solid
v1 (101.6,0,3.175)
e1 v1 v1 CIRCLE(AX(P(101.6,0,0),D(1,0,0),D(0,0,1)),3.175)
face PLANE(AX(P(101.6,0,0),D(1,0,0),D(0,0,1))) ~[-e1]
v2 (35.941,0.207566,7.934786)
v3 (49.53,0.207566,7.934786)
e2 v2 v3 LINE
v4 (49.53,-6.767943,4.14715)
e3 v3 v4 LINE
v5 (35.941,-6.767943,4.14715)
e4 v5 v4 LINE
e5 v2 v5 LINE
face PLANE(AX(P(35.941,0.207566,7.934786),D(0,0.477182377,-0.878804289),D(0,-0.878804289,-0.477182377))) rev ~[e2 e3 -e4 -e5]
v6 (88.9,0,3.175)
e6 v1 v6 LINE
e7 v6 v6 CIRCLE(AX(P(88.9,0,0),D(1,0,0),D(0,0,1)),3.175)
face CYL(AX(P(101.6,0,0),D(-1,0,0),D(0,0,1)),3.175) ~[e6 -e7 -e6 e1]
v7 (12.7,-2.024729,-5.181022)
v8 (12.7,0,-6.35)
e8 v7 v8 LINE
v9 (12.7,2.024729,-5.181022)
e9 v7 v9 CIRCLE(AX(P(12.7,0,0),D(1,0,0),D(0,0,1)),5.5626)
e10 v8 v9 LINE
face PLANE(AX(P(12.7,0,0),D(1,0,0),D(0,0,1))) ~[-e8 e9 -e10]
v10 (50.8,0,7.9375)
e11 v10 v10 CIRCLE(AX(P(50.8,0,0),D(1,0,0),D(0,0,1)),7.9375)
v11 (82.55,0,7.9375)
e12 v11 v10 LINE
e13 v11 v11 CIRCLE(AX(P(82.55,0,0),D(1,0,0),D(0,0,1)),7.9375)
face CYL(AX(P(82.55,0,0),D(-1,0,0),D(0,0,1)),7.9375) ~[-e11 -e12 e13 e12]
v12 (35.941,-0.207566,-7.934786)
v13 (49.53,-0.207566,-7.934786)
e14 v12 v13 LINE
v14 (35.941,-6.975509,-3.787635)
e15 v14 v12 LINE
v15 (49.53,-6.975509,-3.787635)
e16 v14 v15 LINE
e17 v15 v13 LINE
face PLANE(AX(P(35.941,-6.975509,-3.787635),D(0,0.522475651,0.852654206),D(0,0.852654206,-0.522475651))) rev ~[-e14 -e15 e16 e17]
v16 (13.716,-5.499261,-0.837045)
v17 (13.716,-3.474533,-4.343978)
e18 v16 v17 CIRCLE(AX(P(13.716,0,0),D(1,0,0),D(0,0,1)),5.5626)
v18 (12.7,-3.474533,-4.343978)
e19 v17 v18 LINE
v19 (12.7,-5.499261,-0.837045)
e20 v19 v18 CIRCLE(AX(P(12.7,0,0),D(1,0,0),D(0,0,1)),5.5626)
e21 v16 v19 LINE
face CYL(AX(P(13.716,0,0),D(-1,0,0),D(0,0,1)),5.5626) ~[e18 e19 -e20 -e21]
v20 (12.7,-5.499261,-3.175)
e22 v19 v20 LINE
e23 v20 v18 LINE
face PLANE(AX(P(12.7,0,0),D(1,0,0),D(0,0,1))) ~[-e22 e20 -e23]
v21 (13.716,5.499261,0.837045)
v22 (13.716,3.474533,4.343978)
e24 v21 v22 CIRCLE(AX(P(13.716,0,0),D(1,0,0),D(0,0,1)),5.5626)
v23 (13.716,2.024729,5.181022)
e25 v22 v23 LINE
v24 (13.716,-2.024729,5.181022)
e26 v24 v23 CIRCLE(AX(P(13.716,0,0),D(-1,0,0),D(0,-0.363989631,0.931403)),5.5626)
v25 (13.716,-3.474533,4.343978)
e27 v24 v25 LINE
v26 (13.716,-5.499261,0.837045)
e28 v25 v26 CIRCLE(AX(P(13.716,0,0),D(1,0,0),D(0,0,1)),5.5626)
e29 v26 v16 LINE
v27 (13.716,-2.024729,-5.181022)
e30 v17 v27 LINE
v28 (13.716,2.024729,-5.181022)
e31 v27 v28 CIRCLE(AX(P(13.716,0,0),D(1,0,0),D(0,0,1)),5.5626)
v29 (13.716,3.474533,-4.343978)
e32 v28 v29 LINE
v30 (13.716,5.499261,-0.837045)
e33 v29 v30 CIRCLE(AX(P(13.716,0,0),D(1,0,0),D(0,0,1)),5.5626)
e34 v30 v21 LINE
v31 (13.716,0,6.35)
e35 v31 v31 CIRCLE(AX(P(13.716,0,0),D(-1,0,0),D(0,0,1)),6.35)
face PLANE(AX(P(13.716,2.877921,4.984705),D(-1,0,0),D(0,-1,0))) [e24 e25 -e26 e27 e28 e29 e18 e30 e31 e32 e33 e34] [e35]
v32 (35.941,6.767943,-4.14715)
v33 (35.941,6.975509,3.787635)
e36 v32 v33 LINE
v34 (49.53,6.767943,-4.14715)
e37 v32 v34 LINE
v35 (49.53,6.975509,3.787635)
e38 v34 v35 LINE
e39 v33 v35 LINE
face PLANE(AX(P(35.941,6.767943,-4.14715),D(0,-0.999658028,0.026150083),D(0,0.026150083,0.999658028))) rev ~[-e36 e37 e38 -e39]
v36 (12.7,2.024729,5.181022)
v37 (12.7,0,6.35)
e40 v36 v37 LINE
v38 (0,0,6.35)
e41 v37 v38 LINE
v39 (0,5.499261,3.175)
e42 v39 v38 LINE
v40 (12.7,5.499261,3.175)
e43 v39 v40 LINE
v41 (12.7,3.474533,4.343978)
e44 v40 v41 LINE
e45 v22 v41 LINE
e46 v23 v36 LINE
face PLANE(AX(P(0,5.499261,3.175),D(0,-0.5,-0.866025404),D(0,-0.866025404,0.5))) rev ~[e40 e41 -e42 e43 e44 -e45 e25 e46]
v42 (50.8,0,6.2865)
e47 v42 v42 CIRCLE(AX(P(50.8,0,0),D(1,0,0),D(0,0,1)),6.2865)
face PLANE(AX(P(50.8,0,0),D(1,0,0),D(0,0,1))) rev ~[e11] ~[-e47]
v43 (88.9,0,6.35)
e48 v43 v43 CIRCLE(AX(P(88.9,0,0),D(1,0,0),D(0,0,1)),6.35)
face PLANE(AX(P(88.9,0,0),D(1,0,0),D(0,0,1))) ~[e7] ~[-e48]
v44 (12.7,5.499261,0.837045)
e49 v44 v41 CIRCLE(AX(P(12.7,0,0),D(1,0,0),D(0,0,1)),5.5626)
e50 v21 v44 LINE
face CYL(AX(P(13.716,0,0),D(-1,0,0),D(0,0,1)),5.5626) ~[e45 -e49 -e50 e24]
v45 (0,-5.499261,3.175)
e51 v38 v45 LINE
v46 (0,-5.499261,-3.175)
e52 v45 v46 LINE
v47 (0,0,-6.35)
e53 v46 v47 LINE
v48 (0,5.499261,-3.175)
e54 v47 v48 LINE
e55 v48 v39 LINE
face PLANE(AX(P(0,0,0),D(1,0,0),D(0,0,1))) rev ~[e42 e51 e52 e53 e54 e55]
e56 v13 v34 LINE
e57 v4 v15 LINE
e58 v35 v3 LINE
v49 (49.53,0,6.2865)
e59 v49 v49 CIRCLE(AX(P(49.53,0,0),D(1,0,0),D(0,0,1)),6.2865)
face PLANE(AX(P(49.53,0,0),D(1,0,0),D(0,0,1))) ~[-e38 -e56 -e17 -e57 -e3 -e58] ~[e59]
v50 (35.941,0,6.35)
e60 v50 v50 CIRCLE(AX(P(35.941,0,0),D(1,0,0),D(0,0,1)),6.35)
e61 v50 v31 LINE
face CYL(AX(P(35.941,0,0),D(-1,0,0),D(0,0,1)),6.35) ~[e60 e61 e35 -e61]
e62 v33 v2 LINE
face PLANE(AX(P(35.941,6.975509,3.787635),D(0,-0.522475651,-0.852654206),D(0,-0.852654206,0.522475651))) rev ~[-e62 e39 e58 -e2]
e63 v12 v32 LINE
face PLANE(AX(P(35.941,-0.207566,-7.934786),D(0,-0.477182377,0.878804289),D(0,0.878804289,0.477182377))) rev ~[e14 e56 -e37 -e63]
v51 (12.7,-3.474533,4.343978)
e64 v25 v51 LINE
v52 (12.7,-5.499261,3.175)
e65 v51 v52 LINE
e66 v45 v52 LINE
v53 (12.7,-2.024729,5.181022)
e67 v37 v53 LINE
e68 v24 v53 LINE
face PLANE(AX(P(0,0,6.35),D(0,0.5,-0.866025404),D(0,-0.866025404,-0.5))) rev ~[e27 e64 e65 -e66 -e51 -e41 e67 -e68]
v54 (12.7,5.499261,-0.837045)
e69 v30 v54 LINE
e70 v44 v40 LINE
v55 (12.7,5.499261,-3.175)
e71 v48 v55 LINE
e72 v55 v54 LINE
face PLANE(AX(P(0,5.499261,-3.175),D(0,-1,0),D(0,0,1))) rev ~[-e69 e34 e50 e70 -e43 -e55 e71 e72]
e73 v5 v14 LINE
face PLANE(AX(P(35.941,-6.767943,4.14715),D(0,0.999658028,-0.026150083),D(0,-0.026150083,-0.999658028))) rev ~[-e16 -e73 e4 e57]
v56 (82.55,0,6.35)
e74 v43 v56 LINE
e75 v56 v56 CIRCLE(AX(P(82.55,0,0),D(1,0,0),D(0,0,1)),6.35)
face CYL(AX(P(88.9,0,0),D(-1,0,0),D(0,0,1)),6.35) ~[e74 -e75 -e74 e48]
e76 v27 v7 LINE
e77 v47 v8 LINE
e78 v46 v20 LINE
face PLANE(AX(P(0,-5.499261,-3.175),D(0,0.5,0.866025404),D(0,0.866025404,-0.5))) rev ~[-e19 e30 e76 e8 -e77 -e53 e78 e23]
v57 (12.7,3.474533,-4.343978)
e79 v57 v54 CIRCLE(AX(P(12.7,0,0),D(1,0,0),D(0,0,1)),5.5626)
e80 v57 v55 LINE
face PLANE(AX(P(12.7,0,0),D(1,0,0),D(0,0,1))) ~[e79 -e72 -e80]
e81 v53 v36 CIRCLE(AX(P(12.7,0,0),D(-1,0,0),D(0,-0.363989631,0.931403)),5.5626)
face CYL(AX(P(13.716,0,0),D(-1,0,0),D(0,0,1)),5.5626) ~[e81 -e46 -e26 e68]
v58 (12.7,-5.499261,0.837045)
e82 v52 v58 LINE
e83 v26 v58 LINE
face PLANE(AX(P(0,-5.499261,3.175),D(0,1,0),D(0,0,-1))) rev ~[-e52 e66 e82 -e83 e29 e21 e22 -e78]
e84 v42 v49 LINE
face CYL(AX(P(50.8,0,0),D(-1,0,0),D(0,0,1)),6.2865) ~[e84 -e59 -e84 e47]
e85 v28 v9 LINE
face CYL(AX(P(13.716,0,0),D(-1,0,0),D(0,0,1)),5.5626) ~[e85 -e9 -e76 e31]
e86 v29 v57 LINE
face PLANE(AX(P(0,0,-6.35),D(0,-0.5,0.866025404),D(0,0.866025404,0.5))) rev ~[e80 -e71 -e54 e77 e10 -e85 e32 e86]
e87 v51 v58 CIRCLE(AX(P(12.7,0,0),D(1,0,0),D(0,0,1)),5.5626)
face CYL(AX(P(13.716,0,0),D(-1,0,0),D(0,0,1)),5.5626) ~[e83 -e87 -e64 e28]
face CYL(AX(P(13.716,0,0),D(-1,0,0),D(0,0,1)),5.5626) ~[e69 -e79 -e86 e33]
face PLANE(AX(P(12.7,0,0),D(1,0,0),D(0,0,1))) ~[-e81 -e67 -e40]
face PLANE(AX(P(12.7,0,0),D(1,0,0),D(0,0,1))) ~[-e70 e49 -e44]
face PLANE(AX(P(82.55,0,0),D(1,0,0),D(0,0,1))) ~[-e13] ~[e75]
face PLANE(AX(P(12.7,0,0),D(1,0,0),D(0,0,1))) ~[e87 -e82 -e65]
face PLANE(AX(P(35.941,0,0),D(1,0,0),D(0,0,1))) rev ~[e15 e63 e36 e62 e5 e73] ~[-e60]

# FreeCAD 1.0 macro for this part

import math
import FreeCAD as App
import Part
import Sketcher

V = App.Vector
Q = App.Units.Quantity

doc = App.newDocument("Part")
body = doc.addObject("PartDesign::Body", "Body")

# Sketch on XZ plane
sketch1 = doc.addObject("Sketcher::SketchObject", "Sketch")
body.addObject(sketch1)
sketch1.AttachmentSupport = (doc.XZ_Plane, [""])
sketch1.MapMode = "FlatFace"
sketch1.addGeometry(Part.LineSegment(V(0, 6.3, 0), V(0, 0, 0)), False)
sketch1.addGeometry(Part.LineSegment(V(0, 0, 0), V(101.6, 0, 0)), False)
sketch1.addGeometry(Part.LineSegment(V(101.6, 0, 0), V(101.6, 3.2, 0)), False)
sketch1.addGeometry(Part.LineSegment(V(101.6, 3.2, 0), V(88.9, 3.2, 0)), False)
sketch1.addGeometry(Part.LineSegment(V(88.9, 3.2, 0), V(88.9, 6.3, 0)), False)
sketch1.addGeometry(Part.LineSegment(V(88.9, 6.3, 0), V(82.5, 6.3, 0)), False)
sketch1.addGeometry(Part.LineSegment(V(82.5, 6.3, 0), V(82.5, 7.9, 0)), False)
sketch1.addGeometry(Part.LineSegment(V(82.5, 7.9, 0), V(50.8, 7.9, 0)), False)
sketch1.addGeometry(Part.LineSegment(V(50.8, 7.9, 0), V(50.8, 6.3, 0)), False)
sketch1.addGeometry(Part.LineSegment(V(50.8, 6.3, 0), V(49.5, 6.3, 0)), False)
sketch1.addGeometry(Part.LineSegment(V(49.5, 6.3, 0), V(49.5, 7.9, 0)), False)
sketch1.addGeometry(Part.LineSegment(V(49.5, 7.9, 0), V(35.9, 7.9, 0)), False)
sketch1.addGeometry(Part.LineSegment(V(35.9, 7.9, 0), V(35.9, 6.3, 0)), False)
sketch1.addGeometry(Part.LineSegment(V(35.9, 6.3, 0), V(13.7, 6.3, 0)), False)
sketch1.addGeometry(Part.LineSegment(V(13.7, 6.3, 0), V(13.7, 5.6, 0)), False)
sketch1.addGeometry(Part.LineSegment(V(13.7, 5.6, 0), V(12.7, 5.6, 0)), False)
sketch1.addGeometry(Part.LineSegment(V(12.7, 5.6, 0), V(12.7, 6.3, 0)), False)
sketch1.addGeometry(Part.LineSegment(V(12.7, 6.3, 0), V(0, 6.3, 0)), False)
sketch1.addConstraint(Sketcher.Constraint("Coincident", 0, 2, 1, 1))
sketch1.addConstraint(Sketcher.Constraint("Coincident", 1, 2, 2, 1))
sketch1.addConstraint(Sketcher.Constraint("Coincident", 2, 2, 3, 1))
sketch1.addConstraint(Sketcher.Constraint("Coincident", 3, 2, 4, 1))
sketch1.addConstraint(Sketcher.Constraint("Coincident", 4, 2, 5, 1))
sketch1.addConstraint(Sketcher.Constraint("Coincident", 5, 2, 6, 1))
sketch1.addConstraint(Sketcher.Constraint("Coincident", 6, 2, 7, 1))
sketch1.addConstraint(Sketcher.Constraint("Coincident", 7, 2, 8, 1))
sketch1.addConstraint(Sketcher.Constraint("Coincident", 8, 2, 9, 1))
sketch1.addConstraint(Sketcher.Constraint("Coincident", 9, 2, 10, 1))
sketch1.addConstraint(Sketcher.Constraint("Coincident", 10, 2, 11, 1))
sketch1.addConstraint(Sketcher.Constraint("Coincident", 11, 2, 12, 1))
sketch1.addConstraint(Sketcher.Constraint("Coincident", 12, 2, 13, 1))
sketch1.addConstraint(Sketcher.Constraint("Coincident", 13, 2, 14, 1))
sketch1.addConstraint(Sketcher.Constraint("Coincident", 14, 2, 15, 1))
sketch1.addConstraint(Sketcher.Constraint("Coincident", 15, 2, 16, 1))
sketch1.addConstraint(Sketcher.Constraint("Coincident", 16, 2, 17, 1))
sketch1.addConstraint(Sketcher.Constraint("Coincident", 17, 2, 0, 1))
sketch1.addConstraint(Sketcher.Constraint("Vertical", 0))
sketch1.addConstraint(Sketcher.Constraint("Horizontal", 1))
sketch1.addConstraint(Sketcher.Constraint("Vertical", 2))
sketch1.addConstraint(Sketcher.Constraint("Horizontal", 3))
sketch1.addConstraint(Sketcher.Constraint("Vertical", 4))
sketch1.addConstraint(Sketcher.Constraint("Horizontal", 5))
sketch1.addConstraint(Sketcher.Constraint("Vertical", 6))
sketch1.addConstraint(Sketcher.Constraint("Horizontal", 7))
sketch1.addConstraint(Sketcher.Constraint("Vertical", 8))
sketch1.addConstraint(Sketcher.Constraint("Horizontal", 9))
sketch1.addConstraint(Sketcher.Constraint("Vertical", 10))
sketch1.addConstraint(Sketcher.Constraint("Horizontal", 11))
sketch1.addConstraint(Sketcher.Constraint("Vertical", 12))
sketch1.addConstraint(Sketcher.Constraint("Horizontal", 13))
sketch1.addConstraint(Sketcher.Constraint("Vertical", 14))
sketch1.addConstraint(Sketcher.Constraint("Horizontal", 15))
sketch1.addConstraint(Sketcher.Constraint("Vertical", 16))
sketch1.addConstraint(Sketcher.Constraint("Horizontal", 17))
sketch1.addConstraint(Sketcher.Constraint("Coincident", 0, 2, -1, 1))
sketch1.addConstraint(Sketcher.Constraint("Horizontal", 7, 2, 10, 2))
sketch1.addConstraint(Sketcher.Constraint("Horizontal", 5, 2, 12, 2))
sketch1.addConstraint(Sketcher.Constraint("Horizontal", 13, 2, 16, 2))
sketch1.addConstraint(Sketcher.Constraint("Equal", 3, 17))
sketch1.addConstraint(Sketcher.Constraint("Equal", 5, 0))
sketch1.addConstraint(Sketcher.Constraint("Equal", 2, 4))
sketch1.addConstraint(Sketcher.Constraint("DistanceX", 1, 1, 1, 2, Q("4 in")))
sketch1.addConstraint(Sketcher.Constraint("DistanceX", 3, 2, 3, 1, Q("0.5 in")))
sketch1.addConstraint(Sketcher.Constraint("DistanceX", -1, 1, 7, 2, Q("2 in")))
sketch1.addConstraint(Sketcher.Constraint("DistanceX", 5, 2, 5, 1, Q("0.25 in")))
sketch1.addConstraint(Sketcher.Constraint("DistanceX", 9, 2, 9, 1, Q("0.05 in")))
sketch1.addConstraint(Sketcher.Constraint("DistanceX", 15, 2, 15, 1, Q("0.04 in")))
sketch1.addConstraint(Sketcher.Constraint("DistanceX", 11, 2, 11, 1, Q("0.535 in")))
sketch1.addConstraint(Sketcher.Constraint("DistanceY", 6, 1, 6, 2, Q("0.0625 in")))
sketch1.addConstraint(Sketcher.Constraint("DistanceY", 8, 2, 8, 1, Q("0.065 in")))
sketch1.addConstraint(Sketcher.Constraint("DistanceY", 14, 2, 14, 1, Q("0.031 in")))
revolution = doc.addObject("PartDesign::Revolution", "Revolution")
body.addObject(revolution)
revolution.Profile = sketch1
revolution.ReferenceAxis = (sketch1, ["H_Axis"])
revolution.Angle = 360

# Sketch on YZ plane
sketch2 = doc.addObject("Sketcher::SketchObject", "Sketch001")
body.addObject(sketch2)
sketch2.AttachmentSupport = (doc.YZ_Plane, [""])
sketch2.MapMode = "FlatFace"
sketch2.addGeometry(Part.LineSegment(V(0, 6.3, 0), V(-5.5, 3.2, 0)), False)
sketch2.addGeometry(Part.ArcOfCircle(Part.Circle(V(0, 0, 0), V(0, 0, 1), 6.3), math.radians(90), math.radians(150)), False)
sketch2.addGeometry(Part.LineSegment(V(-5.5, 3.2, 0), V(-5.5, -3.2, 0)), False)
sketch2.addGeometry(Part.ArcOfCircle(Part.Circle(V(0, 0, 0), V(0, 0, 1), 6.4), math.radians(180), math.radians(210)), False)
sketch2.addGeometry(Part.ArcOfCircle(Part.Circle(V(0, 0, 0), V(0, 0, 1), 6.4), math.radians(150), math.radians(180)), False)
sketch2.addGeometry(Part.LineSegment(V(-5.5, -3.2, 0), V(0, -6.3, 0)), False)
sketch2.addGeometry(Part.ArcOfCircle(Part.Circle(V(0, 0, 0), V(0, 0, 1), 6.3), math.radians(-150), math.radians(-90)), False)
sketch2.addGeometry(Part.ArcOfCircle(Part.Circle(V(0, 0, 0), V(0, 0, 1), 6.3), math.radians(-90), math.radians(-30)), False)
sketch2.addGeometry(Part.LineSegment(V(0, -6.3, 0), V(5.5, -3.2, 0)), False)
sketch2.addGeometry(Part.ArcOfCircle(Part.Circle(V(0, 0, 0), V(0, 0, 1), 6.3), math.radians(-30), math.radians(30)), False)
sketch2.addGeometry(Part.LineSegment(V(5.5, -3.2, 0), V(5.5, 3.2, 0)), False)
sketch2.addGeometry(Part.ArcOfCircle(Part.Circle(V(0, 0, 0), V(0, 0, 1), 6.3), math.radians(30), math.radians(90)), False)
sketch2.addGeometry(Part.LineSegment(V(5.5, 3.2, 0), V(0, 6.3, 0)), False)
sketch2.addConstraint(Sketcher.Constraint("Coincident", 0, 1, 1, 1))
sketch2.addConstraint(Sketcher.Constraint("Coincident", 1, 2, 0, 2))
sketch2.addConstraint(Sketcher.Constraint("Coincident", 2, 2, 3, 2))
sketch2.addConstraint(Sketcher.Constraint("Tangent", 3, 1, 4, 2))
sketch2.addConstraint(Sketcher.Constraint("Coincident", 4, 1, 2, 1))
sketch2.addConstraint(Sketcher.Constraint("Coincident", 5, 1, 6, 1))
sketch2.addConstraint(Sketcher.Constraint("Coincident", 6, 2, 5, 2))
sketch2.addConstraint(Sketcher.Constraint("Coincident", 7, 1, 8, 1))
sketch2.addConstraint(Sketcher.Constraint("Coincident", 8, 2, 7, 2))
sketch2.addConstraint(Sketcher.Constraint("Coincident", 9, 1, 10, 1))
sketch2.addConstraint(Sketcher.Constraint("Coincident", 10, 2, 9, 2))
sketch2.addConstraint(Sketcher.Constraint("Coincident", 11, 1, 12, 1))
sketch2.addConstraint(Sketcher.Constraint("Coincident", 12, 2, 11, 2))
sketch2.addConstraint(Sketcher.Constraint("Vertical", 2))
sketch2.addConstraint(Sketcher.Constraint("Vertical", 10))
sketch2.addConstraint(Sketcher.Constraint("Coincident", 1, 3, -1, 1))
sketch2.addConstraint(Sketcher.Constraint("Coincident", 3, 3, -1, 1))
sketch2.addConstraint(Sketcher.Constraint("Coincident", 6, 3, -1, 1))
sketch2.addConstraint(Sketcher.Constraint("Coincident", 7, 3, -1, 1))
sketch2.addConstraint(Sketcher.Constraint("Coincident", 9, 3, -1, 1))
sketch2.addConstraint(Sketcher.Constraint("Coincident", 11, 3, -1, 1))
sketch2.addConstraint(Sketcher.Constraint("Coincident", 4, 1, 1, 2))
sketch2.addConstraint(Sketcher.Constraint("Coincident", 5, 1, 2, 2))
sketch2.addConstraint(Sketcher.Constraint("Coincident", 7, 1, 6, 2))
sketch2.addConstraint(Sketcher.Constraint("Coincident", 9, 1, 8, 2))
sketch2.addConstraint(Sketcher.Constraint("Coincident", 11, 1, 10, 2))
sketch2.addConstraint(Sketcher.Constraint("Coincident", 12, 2, 0, 1))
sketch2.addConstraint(Sketcher.Constraint("PointOnObject", 0, 1, -2))
sketch2.addConstraint(Sketcher.Constraint("PointOnObject", 3, 1, -1))
sketch2.addConstraint(Sketcher.Constraint("PointOnObject", 6, 2, -2))
sketch2.addConstraint(Sketcher.Constraint("Parallel", 0, 8))
sketch2.addConstraint(Sketcher.Constraint("Radius", 1, Q("0.25 in")))
sketch2.addConstraint(Sketcher.Constraint("Angle", 0, Q("-150 deg")))
pocket1 = doc.addObject("PartDesign::Pocket", "Pocket")
body.addObject(pocket1)
pocket1.Profile = sketch2
pocket1.Length = Q("0.54 in")
pocket1.Reversed = True

# Sketch on YZ plane
sketch3 = doc.addObject("Sketcher::SketchObject", "Sketch002")
body.addObject(sketch3)
sketch3.AttachmentSupport = (doc.YZ_Plane, [""])
sketch3.MapMode = "FlatFace"
sketch3.AttachmentOffset = App.Placement(V(0, 0, 1.415 * 25.4), App.Rotation())
sketch3.addGeometry(Part.LineSegment(V(-6.8, 4.1, 0), V(-7, -3.8, 0)), False)
sketch3.addGeometry(Part.ArcOfCircle(Part.Circle(V(0, 0, 0), V(0, 0, 1), 7.9), math.radians(180), math.radians(209)), False)
sketch3.addGeometry(Part.ArcOfCircle(Part.Circle(V(0, 0, 0), V(0, 0, 1), 7.9), math.radians(149), math.radians(180)), False)
sketch3.addGeometry(Part.ArcOfCircle(Part.Circle(V(0, 0, 0), V(0, 0, 1), 7.9), math.radians(89), math.radians(149)), False)
sketch3.addGeometry(Part.LineSegment(V(0.2, 7.9, 0), V(-6.8, 4.1, 0)), False)
sketch3.addGeometry(Part.ArcOfCircle(Part.Circle(V(0, 0, 0), V(0, 0, 1), 7.9), math.radians(29), math.radians(89)), False)
sketch3.addGeometry(Part.LineSegment(V(7, 3.8, 0), V(0.2, 7.9, 0)), False)
sketch3.addGeometry(Part.ArcOfCircle(Part.Circle(V(0, 0, 0), V(0, 0, 1), 7.9), math.radians(-31), math.radians(29)), False)
sketch3.addGeometry(Part.LineSegment(V(6.8, -4.1, 0), V(7, 3.8, 0)), False)
sketch3.addGeometry(Part.LineSegment(V(-7, -3.8, 0), V(-0.2, -7.9, 0)), False)
sketch3.addGeometry(Part.ArcOfCircle(Part.Circle(V(0, 0, 0), V(0, 0, 1), 7.9), math.radians(-151), math.radians(-91)), False)
sketch3.addGeometry(Part.LineSegment(V(-0.2, -7.9, 0), V(6.8, -4.1, 0)), False)
sketch3.addGeometry(Part.ArcOfCircle(Part.Circle(V(0, 0, 0), V(0, 0, 1), 7.9), math.radians(-91), math.radians(-31)), False)
sketch3.addConstraint(Sketcher.Constraint("Coincident", 0, 2, 1, 2))
sketch3.addConstraint(Sketcher.Constraint("Tangent", 1, 1, 2, 2))
sketch3.addConstraint(Sketcher.Constraint("Coincident", 2, 1, 0, 1))
sketch3.addConstraint(Sketcher.Constraint("Coincident", 3, 1, 4, 1))
sketch3.addConstraint(Sketcher.Constraint("Coincident", 4, 2, 3, 2))
sketch3.addConstraint(Sketcher.Constraint("Coincident", 5, 1, 6, 1))
sketch3.addConstraint(Sketcher.Constraint("Coincident", 6, 2, 5, 2))
sketch3.addConstraint(Sketcher.Constraint("Coincident", 7, 1, 8, 1))
sketch3.addConstraint(Sketcher.Constraint("Coincident", 8, 2, 7, 2))
sketch3.addConstraint(Sketcher.Constraint("Coincident", 9, 1, 10, 1))
sketch3.addConstraint(Sketcher.Constraint("Coincident", 10, 2, 9, 2))
sketch3.addConstraint(Sketcher.Constraint("Coincident", 11, 1, 12, 1))
sketch3.addConstraint(Sketcher.Constraint("Coincident", 12, 2, 11, 2))
sketch3.addConstraint(Sketcher.Constraint("Coincident", 1, 3, -1, 1))
sketch3.addConstraint(Sketcher.Constraint("Coincident", 3, 3, -1, 1))
sketch3.addConstraint(Sketcher.Constraint("Coincident", 5, 3, -1, 1))
sketch3.addConstraint(Sketcher.Constraint("Coincident", 7, 3, -1, 1))
sketch3.addConstraint(Sketcher.Constraint("Coincident", 10, 3, -1, 1))
sketch3.addConstraint(Sketcher.Constraint("Coincident", 12, 3, -1, 1))
sketch3.addConstraint(Sketcher.Constraint("Coincident", 4, 2, 2, 1))
sketch3.addConstraint(Sketcher.Constraint("Coincident", 6, 2, 3, 1))
sketch3.addConstraint(Sketcher.Constraint("Coincident", 8, 2, 5, 1))
sketch3.addConstraint(Sketcher.Constraint("Coincident", 9, 1, 0, 2))
sketch3.addConstraint(Sketcher.Constraint("Coincident", 11, 1, 10, 2))
sketch3.addConstraint(Sketcher.Constraint("Coincident", 12, 2, 7, 1))
sketch3.addConstraint(Sketcher.Constraint("PointOnObject", 1, 1, -1))
sketch3.addConstraint(Sketcher.Constraint("Parallel", 0, 8))
sketch3.addConstraint(Sketcher.Constraint("Parallel", 6, 9))
sketch3.addConstraint(Sketcher.Constraint("Equal", 0, 4))
sketch3.addConstraint(Sketcher.Constraint("Equal", 4, 6))
sketch3.addConstraint(Sketcher.Constraint("Equal", 6, 8))
sketch3.addConstraint(Sketcher.Constraint("Radius", 1, Q("0.3125 in")))
sketch3.addConstraint(Sketcher.Constraint("DistanceX", 0, 2, -1, 1, Q("6.975509 mm")))
pocket2 = doc.addObject("PartDesign::Pocket", "Pocket001")
body.addObject(pocket2)
pocket2.Profile = sketch3
pocket2.Length = Q("0.535 in")
pocket2.Reversed = True

doc.recompute()
